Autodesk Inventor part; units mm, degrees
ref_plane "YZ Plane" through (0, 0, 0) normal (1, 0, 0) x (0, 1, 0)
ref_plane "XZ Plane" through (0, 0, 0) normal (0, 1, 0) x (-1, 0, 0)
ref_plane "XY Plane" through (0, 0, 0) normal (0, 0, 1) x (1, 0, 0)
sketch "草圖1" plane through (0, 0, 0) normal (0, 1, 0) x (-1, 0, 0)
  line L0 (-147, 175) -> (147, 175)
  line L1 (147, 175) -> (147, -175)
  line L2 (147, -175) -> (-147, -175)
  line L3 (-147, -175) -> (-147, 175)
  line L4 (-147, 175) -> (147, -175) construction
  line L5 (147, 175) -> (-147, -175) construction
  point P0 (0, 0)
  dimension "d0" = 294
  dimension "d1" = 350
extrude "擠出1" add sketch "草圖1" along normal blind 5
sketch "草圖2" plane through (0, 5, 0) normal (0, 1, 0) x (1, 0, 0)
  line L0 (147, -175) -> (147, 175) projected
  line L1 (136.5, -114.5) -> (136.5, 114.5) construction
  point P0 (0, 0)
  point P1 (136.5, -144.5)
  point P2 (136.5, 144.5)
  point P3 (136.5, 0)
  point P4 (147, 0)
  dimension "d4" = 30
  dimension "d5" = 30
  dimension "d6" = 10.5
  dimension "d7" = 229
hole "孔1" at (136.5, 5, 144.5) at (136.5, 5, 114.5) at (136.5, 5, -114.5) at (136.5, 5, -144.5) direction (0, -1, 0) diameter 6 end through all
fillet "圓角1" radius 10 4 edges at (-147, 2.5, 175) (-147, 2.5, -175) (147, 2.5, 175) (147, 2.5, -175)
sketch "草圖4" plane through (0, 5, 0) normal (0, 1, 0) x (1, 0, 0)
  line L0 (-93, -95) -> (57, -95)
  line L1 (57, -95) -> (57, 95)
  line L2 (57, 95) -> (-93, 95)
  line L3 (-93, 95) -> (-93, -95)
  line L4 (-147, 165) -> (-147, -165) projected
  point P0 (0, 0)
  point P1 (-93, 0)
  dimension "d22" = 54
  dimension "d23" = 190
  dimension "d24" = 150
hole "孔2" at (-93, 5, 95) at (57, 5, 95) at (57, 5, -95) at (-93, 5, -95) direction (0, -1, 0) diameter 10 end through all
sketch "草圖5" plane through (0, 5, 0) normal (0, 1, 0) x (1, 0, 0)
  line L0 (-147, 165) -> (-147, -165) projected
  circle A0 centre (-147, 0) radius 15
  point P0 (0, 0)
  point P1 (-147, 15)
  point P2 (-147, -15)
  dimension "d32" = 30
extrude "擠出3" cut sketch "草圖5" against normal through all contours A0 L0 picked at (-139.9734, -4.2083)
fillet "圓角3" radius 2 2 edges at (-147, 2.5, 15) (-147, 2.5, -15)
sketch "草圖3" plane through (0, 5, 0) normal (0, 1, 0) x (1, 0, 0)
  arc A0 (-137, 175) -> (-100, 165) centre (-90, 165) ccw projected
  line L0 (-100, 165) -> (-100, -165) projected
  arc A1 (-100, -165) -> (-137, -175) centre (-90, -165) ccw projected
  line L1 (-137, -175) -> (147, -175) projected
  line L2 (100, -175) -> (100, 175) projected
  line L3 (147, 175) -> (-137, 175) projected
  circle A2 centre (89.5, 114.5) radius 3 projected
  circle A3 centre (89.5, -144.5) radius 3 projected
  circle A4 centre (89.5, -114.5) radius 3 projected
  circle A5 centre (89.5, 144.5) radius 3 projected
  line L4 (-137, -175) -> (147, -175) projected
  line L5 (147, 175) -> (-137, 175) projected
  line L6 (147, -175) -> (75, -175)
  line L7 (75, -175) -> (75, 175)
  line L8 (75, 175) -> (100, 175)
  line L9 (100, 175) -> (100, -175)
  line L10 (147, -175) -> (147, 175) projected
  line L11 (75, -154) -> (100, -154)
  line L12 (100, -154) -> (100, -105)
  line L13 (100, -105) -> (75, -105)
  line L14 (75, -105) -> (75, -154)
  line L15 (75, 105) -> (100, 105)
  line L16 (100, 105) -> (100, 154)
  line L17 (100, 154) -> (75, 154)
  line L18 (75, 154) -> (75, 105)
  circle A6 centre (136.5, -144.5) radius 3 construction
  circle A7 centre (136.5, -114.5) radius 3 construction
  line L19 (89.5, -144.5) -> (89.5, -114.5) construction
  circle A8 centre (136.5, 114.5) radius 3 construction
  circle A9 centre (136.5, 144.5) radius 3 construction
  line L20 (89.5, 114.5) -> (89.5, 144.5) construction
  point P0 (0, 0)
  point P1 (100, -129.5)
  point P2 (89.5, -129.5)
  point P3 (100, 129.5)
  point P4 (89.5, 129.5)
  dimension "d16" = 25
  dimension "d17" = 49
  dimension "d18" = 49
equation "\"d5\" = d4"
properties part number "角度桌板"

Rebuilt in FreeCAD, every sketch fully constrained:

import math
import FreeCAD as App
import Part
import Sketcher
from FreeCAD import Vector


def edges_at(feature, points):
    """Names of the edges that pass closest to the given points."""
    edges = feature.Shape.Edges
    near = lambda p: min(range(len(edges)), key=lambda i: edges[i].distToShape(Part.Vertex(*p))[0])
    return sorted({f"Edge{near(p) + 1}" for p in points})

doc = App.newDocument("Part")
params = doc.addObject("Spreadsheet::Sheet", "Params")
for row, (alias, value) in enumerate([
    ("sketch1_width", "294 mm"),
    ("sketch1_height", "350 mm"),
    ("pad1_length", "5 mm"),
    ("sketch2_diameter", "6 mm"),
    ("hole_diameter", "6 mm"),
    ("fillet_radius", "10 mm"),
    ("sketch3_diameter", "10 mm"),
    ("hole2_diameter", "10 mm"),
    ("sketch4_radius", "15 mm"),
    ("fillet2_radius", "2 mm"),
], start=1):
    params.set(f"A{row}", alias)
    params.set(f"B{row}", "=" + value)
    params.setAlias(f"B{row}", alias)

body = doc.addObject("PartDesign::Body", "Body")

# Sketch on XZ plane
sketch1 = doc.addObject("Sketcher::SketchObject", "Sketch")
body.addObject(sketch1)
sketch1.AttachmentSupport = (doc.XZ_Plane, [""])
sketch1.MapMode = "FlatFace"
sketch1.addGeometry([
    Part.LineSegment(Vector(-147, 175, 0), Vector(147, 175, 0)),
    Part.LineSegment(Vector(147, 175, 0), Vector(147, -175, 0)),
    Part.LineSegment(Vector(147, -175, 0), Vector(-147, -175, 0)),
    Part.LineSegment(Vector(-147, -175, 0), Vector(-147, 175, 0)),
], False)
sketch1.addConstraint([
    Sketcher.Constraint("Coincident", 0, 2, 1, 1),
    Sketcher.Constraint("Coincident", 1, 2, 2, 1),
    Sketcher.Constraint("Coincident", 2, 2, 3, 1),
    Sketcher.Constraint("Coincident", 3, 2, 0, 1),
    Sketcher.Constraint("Horizontal", 0),
    Sketcher.Constraint("Vertical", 1),
    Sketcher.Constraint("Horizontal", 2),
    Sketcher.Constraint("Vertical", 3),
    Sketcher.Constraint("Symmetric", 0, 2, 2, 2, -1, 1),
    Sketcher.Constraint("DistanceX", 0, 1, 0, 2, 294.0),
    Sketcher.Constraint("DistanceY", 1, 2, 1, 1, 350.0),
])
sketch1.setExpression("Constraints[9]", "Params.sketch1_width")
sketch1.setExpression("Constraints[10]", "Params.sketch1_height")
pad1 = doc.addObject("PartDesign::Pad", "Pad")
body.addObject(pad1)
pad1.Profile = sketch1
pad1.setExpression("Length", "Params.pad1_length")
pad1.Reversed = True

# Sketch on XZ plane
sketch2 = doc.addObject("Sketcher::SketchObject", "Sketch001")
body.addObject(sketch2)
sketch2.AttachmentSupport = (doc.XZ_Plane, [""])
sketch2.MapMode = "FlatFace"
sketch2.AttachmentOffset = App.Placement(Vector(0, 0, -5), App.Rotation())
sketch2.addGeometry([
    Part.Circle(Vector(136.5, 144.5, 0), Vector(0, 0, 1), 3),
    Part.Circle(Vector(136.5, 114.5, 0), Vector(0, 0, 1), 3),
    Part.Circle(Vector(136.5, -114.5, 0), Vector(0, 0, 1), 3),
    Part.Circle(Vector(136.5, -144.5, 0), Vector(0, 0, 1), 3),
], False)
sketch2.addConstraint([
    Sketcher.Constraint("Equal", 0, 1),
    Sketcher.Constraint("Equal", 1, 2),
    Sketcher.Constraint("Equal", 2, 3),
    Sketcher.Constraint("Symmetric", 1, 3, 2, 3, -1),
    Sketcher.Constraint("Symmetric", 0, 3, 3, 3, -1),
    Sketcher.Constraint("Vertical", 0, 3, 1, 3),
    Sketcher.Constraint("Diameter", 0, 6.0),
    Sketcher.Constraint("DistanceY", 1, 3, 0, 3, 30.0),
    Sketcher.Constraint("DistanceY", 2, 3, 1, 3, 229.0),
    Sketcher.Constraint("DistanceX", -1, 1, 0, 3, 136.5),
])
sketch2.setExpression("Constraints[6]", "Params.sketch2_diameter")
doc.recompute()
hole = doc.addObject("PartDesign::Hole", "Hole")
body.addObject(hole)
hole.Profile = sketch2
hole.ThreadType = "None"
hole.setExpression("Diameter", "Params.hole_diameter")
hole.DepthType = "ThroughAll"
hole.Reversed = True
doc.recompute()

fillet = doc.addObject("PartDesign::Fillet", "Fillet")
body.addObject(fillet)
fillet.Base = (hole, edges_at(hole, [
    (-147, 2.5, 175),
    (-147, 2.5, -175),
    (147, 2.5, 175),
    (147, 2.5, -175),
]))
fillet.setExpression("Radius", "Params.fillet_radius")

# Sketch on XZ plane
sketch3 = doc.addObject("Sketcher::SketchObject", "Sketch002")
body.addObject(sketch3)
sketch3.AttachmentSupport = (doc.XZ_Plane, [""])
sketch3.MapMode = "FlatFace"
sketch3.AttachmentOffset = App.Placement(Vector(0, 0, -5), App.Rotation())
sketch3.addGeometry([
    Part.Circle(Vector(-93, 95, 0), Vector(0, 0, 1), 5),
    Part.Circle(Vector(57, 95, 0), Vector(0, 0, 1), 5),
    Part.Circle(Vector(57, -95, 0), Vector(0, 0, 1), 5),
    Part.Circle(Vector(-93, -95, 0), Vector(0, 0, 1), 5),
], False)
sketch3.addConstraint([
    Sketcher.Constraint("Equal", 0, 1),
    Sketcher.Constraint("Equal", 1, 2),
    Sketcher.Constraint("Equal", 2, 3),
    Sketcher.Constraint("Symmetric", 1, 3, 2, 3, -1),
    Sketcher.Constraint("Symmetric", 0, 3, 3, 3, -1),
    Sketcher.Constraint("Horizontal", 0, 3, 1, 3),
    Sketcher.Constraint("Diameter", 0, 10.0),
    Sketcher.Constraint("DistanceX", 0, 3, -1, 1, 93.0),
    Sketcher.Constraint("DistanceY", -1, 1, 0, 3, 95.0),
    Sketcher.Constraint("DistanceX", -1, 1, 1, 3, 57.0),
])
sketch3.setExpression("Constraints[6]", "Params.sketch3_diameter")
doc.recompute()
hole2 = doc.addObject("PartDesign::Hole", "Hole001")
body.addObject(hole2)
hole2.Profile = sketch3
hole2.ThreadType = "None"
hole2.setExpression("Diameter", "Params.hole2_diameter")
hole2.DepthType = "ThroughAll"
hole2.Reversed = True

# Sketch on XZ plane
sketch4 = doc.addObject("Sketcher::SketchObject", "Sketch003")
body.addObject(sketch4)
sketch4.AttachmentSupport = (doc.XZ_Plane, [""])
sketch4.MapMode = "FlatFace"
sketch4.AttachmentOffset = App.Placement(Vector(0, 0, -5), App.Rotation())
sketch4.addGeometry([
    Part.ArcOfCircle(Part.Circle(Vector(-147, 0, 0), Vector(0, 0, 1), 15), math.radians(-90), math.radians(90)),
    Part.LineSegment(Vector(-147, -15, 0), Vector(-147, 15, 0)),
], False)
sketch4.addConstraint([
    Sketcher.Constraint("Coincident", 0, 1, 1, 1),
    Sketcher.Constraint("Coincident", 1, 2, 0, 2),
    Sketcher.Constraint("Vertical", 1),
    Sketcher.Constraint("PointOnObject", 0, 3, -1),
    Sketcher.Constraint("Radius", 0, 15.0),
    Sketcher.Constraint("DistanceX", 0, 3, -1, 1, 147.0),
    Sketcher.Constraint("DistanceX", 0, 1, -1, 1, 147.0),
])
sketch4.setExpression("Constraints[4]", "Params.sketch4_radius")
pocket1 = doc.addObject("PartDesign::Pocket", "Pocket")
body.addObject(pocket1)
pocket1.Profile = sketch4
pocket1.Type = "ThroughAll"
pocket1.Reversed = True
doc.recompute()

fillet2 = doc.addObject("PartDesign::Fillet", "Fillet001")
body.addObject(fillet2)
fillet2.Base = (pocket1, edges_at(pocket1, [(-147, 2.5, 15), (-147, 2.5, -15)]))
fillet2.setExpression("Radius", "Params.fillet2_radius")

doc.recompute()
